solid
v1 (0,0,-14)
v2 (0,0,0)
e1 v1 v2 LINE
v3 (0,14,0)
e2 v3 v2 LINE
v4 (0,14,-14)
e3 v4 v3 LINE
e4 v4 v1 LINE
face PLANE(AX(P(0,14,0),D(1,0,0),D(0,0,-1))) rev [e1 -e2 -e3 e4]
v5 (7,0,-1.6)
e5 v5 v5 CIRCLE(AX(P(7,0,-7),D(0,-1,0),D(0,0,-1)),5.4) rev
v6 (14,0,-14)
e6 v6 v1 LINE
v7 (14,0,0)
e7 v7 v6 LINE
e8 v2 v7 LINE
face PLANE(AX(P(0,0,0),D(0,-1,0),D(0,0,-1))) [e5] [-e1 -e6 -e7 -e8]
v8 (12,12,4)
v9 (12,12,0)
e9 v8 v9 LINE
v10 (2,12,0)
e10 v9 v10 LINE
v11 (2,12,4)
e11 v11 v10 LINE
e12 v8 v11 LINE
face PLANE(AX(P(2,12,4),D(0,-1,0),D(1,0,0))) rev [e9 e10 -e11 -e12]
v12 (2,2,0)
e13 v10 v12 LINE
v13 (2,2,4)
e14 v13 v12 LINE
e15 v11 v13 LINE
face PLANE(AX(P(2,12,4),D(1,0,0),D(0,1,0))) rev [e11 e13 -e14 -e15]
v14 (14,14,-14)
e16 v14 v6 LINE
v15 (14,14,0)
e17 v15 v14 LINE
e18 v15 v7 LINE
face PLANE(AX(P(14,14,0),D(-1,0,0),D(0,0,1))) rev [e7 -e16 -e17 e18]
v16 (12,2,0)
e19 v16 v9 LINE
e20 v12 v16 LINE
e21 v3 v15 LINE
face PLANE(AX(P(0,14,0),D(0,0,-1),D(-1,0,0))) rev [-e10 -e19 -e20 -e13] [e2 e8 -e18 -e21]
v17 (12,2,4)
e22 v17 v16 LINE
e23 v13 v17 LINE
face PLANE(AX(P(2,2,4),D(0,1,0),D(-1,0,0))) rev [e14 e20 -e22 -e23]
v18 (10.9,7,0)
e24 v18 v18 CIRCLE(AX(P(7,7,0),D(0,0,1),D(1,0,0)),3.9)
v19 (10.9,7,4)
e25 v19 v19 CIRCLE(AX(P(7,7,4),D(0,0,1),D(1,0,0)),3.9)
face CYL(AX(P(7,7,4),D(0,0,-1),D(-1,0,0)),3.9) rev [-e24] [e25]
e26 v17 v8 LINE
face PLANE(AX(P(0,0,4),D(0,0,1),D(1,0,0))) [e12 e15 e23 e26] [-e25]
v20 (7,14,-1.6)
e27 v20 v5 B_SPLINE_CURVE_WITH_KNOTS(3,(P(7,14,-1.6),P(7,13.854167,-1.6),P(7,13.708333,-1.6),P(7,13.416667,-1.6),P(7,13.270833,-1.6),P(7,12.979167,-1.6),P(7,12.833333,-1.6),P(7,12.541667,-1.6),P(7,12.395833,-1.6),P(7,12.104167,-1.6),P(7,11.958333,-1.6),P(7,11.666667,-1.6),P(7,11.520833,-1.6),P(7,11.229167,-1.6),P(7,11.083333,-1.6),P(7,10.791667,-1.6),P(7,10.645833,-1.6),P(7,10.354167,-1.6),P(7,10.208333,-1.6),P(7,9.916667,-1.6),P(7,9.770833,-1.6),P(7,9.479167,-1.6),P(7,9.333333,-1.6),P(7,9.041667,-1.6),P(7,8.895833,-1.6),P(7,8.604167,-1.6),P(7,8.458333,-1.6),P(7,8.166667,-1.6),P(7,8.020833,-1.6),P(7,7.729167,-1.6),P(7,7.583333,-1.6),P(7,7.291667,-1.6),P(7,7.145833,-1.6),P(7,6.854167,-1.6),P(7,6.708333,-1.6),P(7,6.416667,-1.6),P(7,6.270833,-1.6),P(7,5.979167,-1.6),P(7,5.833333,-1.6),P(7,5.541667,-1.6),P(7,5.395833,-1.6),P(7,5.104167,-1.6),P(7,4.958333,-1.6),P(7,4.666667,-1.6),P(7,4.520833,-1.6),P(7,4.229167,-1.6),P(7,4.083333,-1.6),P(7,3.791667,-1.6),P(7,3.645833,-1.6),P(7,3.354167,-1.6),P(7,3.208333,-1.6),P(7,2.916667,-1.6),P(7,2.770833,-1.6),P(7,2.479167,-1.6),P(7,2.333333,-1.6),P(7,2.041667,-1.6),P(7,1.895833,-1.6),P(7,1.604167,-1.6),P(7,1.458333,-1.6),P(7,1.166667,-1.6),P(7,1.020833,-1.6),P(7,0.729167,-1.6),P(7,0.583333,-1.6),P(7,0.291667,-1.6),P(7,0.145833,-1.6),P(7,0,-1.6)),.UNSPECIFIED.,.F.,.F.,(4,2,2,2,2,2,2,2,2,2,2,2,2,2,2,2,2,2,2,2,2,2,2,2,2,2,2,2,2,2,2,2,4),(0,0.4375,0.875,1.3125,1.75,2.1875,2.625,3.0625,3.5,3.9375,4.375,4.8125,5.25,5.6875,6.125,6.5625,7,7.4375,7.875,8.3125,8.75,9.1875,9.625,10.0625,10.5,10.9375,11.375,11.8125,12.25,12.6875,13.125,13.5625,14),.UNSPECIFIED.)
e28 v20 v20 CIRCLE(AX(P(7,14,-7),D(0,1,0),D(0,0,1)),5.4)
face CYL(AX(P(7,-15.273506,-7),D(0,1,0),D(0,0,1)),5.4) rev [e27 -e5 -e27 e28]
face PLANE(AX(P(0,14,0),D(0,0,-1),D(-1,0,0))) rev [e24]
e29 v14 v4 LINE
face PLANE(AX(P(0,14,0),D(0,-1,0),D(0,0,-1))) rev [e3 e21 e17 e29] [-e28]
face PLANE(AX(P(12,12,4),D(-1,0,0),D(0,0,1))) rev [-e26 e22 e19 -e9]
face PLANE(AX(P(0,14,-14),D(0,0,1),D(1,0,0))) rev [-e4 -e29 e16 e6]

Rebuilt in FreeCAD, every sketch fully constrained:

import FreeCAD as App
import Part
import Sketcher
Q = App.Units.Quantity


def add_polygon(sketch, points):
    """Adds a closed chain of lines whose ends are joined by coincident constraints."""
    first, n = sketch.GeometryCount, len(points)
    for a, b in zip(points, points[1:] + points[:1]):
        sketch.addGeometry(Part.LineSegment(App.Vector(*a, 0), App.Vector(*b, 0)), False)
    for i in range(n):
        sketch.addConstraint(Sketcher.Constraint("Coincident", first + i, 2, first + (i + 1) % n, 1))

doc = App.newDocument("Part")
body = doc.addObject("PartDesign::Body", "Body")

# Sketch on XZ plane
sketch1 = body.newObject("Sketcher::SketchObject", "Sketch")
sketch1.AttachmentSupport = (doc.getObject("XZ_Plane"), [""])
sketch1.MapMode = "FlatFace"
add_polygon(sketch1, [(0, -14), (0, 0), (14, 0), (14, -14)])  # lines 0-3
sketch1.addConstraint(Sketcher.Constraint("Vertical", 0))
sketch1.addConstraint(Sketcher.Constraint("Horizontal", 1))
sketch1.addConstraint(Sketcher.Constraint("Vertical", 2))
sketch1.addConstraint(Sketcher.Constraint("Horizontal", 3))
sketch1.addConstraint(Sketcher.Constraint("Coincident", 0, 2, -1, 1))
sketch1.addConstraint(Sketcher.Constraint("Equal", 3, 0))
sketch1.addConstraint(Sketcher.Constraint("DistanceX", 1, 1, 1, 2, Q("14 mm")))
pad1 = body.newObject("PartDesign::Pad", "Pad")
pad1.Profile = sketch1
pad1.Length = 14
pad1.Reversed = True

# Sketch on XY plane
sketch2 = body.newObject("Sketcher::SketchObject", "Sketch001")
sketch2.AttachmentSupport = (doc.getObject("XY_Plane"), [""])
sketch2.MapMode = "FlatFace"
add_polygon(sketch2, [(2, 12), (2, 2), (12, 2), (12, 12)])  # lines 0-3
sketch2.addGeometry(Part.Circle(App.Vector(7, 7, 0), App.Vector(0, 0, 1), 3.9), False)  # 4
sketch2.addConstraint(Sketcher.Constraint("Vertical", 0))
sketch2.addConstraint(Sketcher.Constraint("Horizontal", 1))
sketch2.addConstraint(Sketcher.Constraint("Vertical", 2))
sketch2.addConstraint(Sketcher.Constraint("Horizontal", 3))
sketch2.addConstraint(Sketcher.Constraint("Equal", 3, 0))
sketch2.addConstraint(Sketcher.Constraint("Diameter", 4, Q("7.8 mm")))
sketch2.addConstraint(Sketcher.Constraint("DistanceX", 1, 1, 1, 2, Q("10 mm")))
sketch2.addConstraint(Sketcher.Constraint("DistanceX", -1, 1, 4, 3, Q("7 mm")))
sketch2.addConstraint(Sketcher.Constraint("DistanceY", -1, 1, 4, 3, Q("7 mm")))
sketch2.addConstraint(Sketcher.Constraint("DistanceX", -1, 1, 0, 2, Q("2 mm")))
sketch2.addConstraint(Sketcher.Constraint("DistanceY", -1, 1, 0, 2, Q("2 mm")))
pad2 = body.newObject("PartDesign::Pad", "Pad001")
pad2.Profile = sketch2
pad2.Length = 4

# Sketch on XZ plane
sketch3 = body.newObject("Sketcher::SketchObject", "Sketch002")
sketch3.AttachmentSupport = (doc.getObject("XZ_Plane"), [""])
sketch3.MapMode = "FlatFace"
sketch3.AttachmentOffset = App.Placement(App.Vector(0, 0, -14), App.Rotation())
sketch3.addGeometry(Part.Circle(App.Vector(7, -7, 0), App.Vector(0, 0, 1), 5), False)
sketch3.addConstraint(Sketcher.Constraint("Diameter", 0, Q("10.8 mm")))
sketch3.addConstraint(Sketcher.Constraint("DistanceX", -1, 1, 0, 3, Q("7 mm")))
sketch3.addConstraint(Sketcher.Constraint("DistanceY", 0, 3, -1, 1, Q("7 mm")))
pocket1 = body.newObject("PartDesign::Pocket", "Pocket")
pocket1.Profile = sketch3
pocket1.Length = 14
pocket1.Reversed = True

doc.recompute()
